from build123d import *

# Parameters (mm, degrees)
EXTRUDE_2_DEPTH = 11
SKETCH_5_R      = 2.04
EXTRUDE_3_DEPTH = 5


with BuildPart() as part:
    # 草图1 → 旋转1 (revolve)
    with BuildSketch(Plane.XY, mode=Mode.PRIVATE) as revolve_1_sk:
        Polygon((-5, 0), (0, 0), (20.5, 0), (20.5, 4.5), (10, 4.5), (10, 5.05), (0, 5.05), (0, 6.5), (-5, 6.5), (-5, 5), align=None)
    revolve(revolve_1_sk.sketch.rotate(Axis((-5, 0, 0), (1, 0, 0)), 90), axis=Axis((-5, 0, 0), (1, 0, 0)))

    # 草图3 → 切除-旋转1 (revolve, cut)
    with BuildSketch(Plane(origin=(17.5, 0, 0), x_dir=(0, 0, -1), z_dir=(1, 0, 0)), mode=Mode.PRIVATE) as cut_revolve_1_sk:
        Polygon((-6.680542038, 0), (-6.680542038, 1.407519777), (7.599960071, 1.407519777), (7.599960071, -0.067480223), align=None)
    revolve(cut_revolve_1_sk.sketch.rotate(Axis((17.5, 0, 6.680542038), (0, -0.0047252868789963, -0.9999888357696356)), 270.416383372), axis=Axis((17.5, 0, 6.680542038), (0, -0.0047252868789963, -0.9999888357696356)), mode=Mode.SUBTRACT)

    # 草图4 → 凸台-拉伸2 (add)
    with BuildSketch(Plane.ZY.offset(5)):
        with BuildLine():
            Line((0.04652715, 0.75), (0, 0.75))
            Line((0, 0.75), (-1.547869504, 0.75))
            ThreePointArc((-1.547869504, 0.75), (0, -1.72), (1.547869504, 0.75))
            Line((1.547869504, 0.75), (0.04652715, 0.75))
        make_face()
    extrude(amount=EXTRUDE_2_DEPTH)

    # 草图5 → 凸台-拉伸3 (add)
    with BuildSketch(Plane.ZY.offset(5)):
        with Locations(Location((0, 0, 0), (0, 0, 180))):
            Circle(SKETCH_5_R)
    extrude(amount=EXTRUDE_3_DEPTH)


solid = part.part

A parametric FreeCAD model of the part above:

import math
import FreeCAD as App
import Part
import Sketcher
from FreeCAD import Vector

doc = App.newDocument("Part")
params = doc.addObject("Spreadsheet::Sheet", "Params")
for row, (alias, value) in enumerate([
    ("sketch1_width", "10 mm"),
    ("sketch1_width2", "5 mm"),
    ("sketch1_width3", "25.5 mm"),
    ("sketch1_height", "4.5 mm"),
    ("sketch1_height2", "6.5 mm"),
    ("revolution_angle", "360 deg"),
    ("groove_angle", "360 deg"),
    ("sketch3_radius", "1.72 mm"),
    ("pad1_length", "11 mm"),
    ("sketch4_diameter", "4.08 mm"),
    ("pad2_length", "5 mm"),
], start=1):
    params.set(f"A{row}", alias)
    params.set(f"B{row}", "=" + value)
    params.setAlias(f"B{row}", alias)

body = doc.addObject("PartDesign::Body", "Body")

sketch1 = body.newObject("Sketcher::SketchObject", "Sketch")
sketch1.AttachmentSupport = (doc.getObject("XY_Plane"), [""])
sketch1.MapMode = "FlatFace"
sketch1.addGeometry([
    Part.LineSegment(Vector(-5, 0, 0), Vector(20.5, 0, 0)),
    Part.LineSegment(Vector(20.5, 0, 0), Vector(20.5, 4.5, 0)),
    Part.LineSegment(Vector(20.5, 4.5, 0), Vector(10, 4.5, 0)),
    Part.LineSegment(Vector(10, 4.5, 0), Vector(10, 5, 0)),
    Part.LineSegment(Vector(10, 5, 0), Vector(0, 5, 0)),
    Part.LineSegment(Vector(0, 5, 0), Vector(0, 6.5, 0)),
    Part.LineSegment(Vector(0, 6.5, 0), Vector(-5, 6.5, 0)),
    Part.LineSegment(Vector(-5, 6.5, 0), Vector(-5, 0, 0)),
], False)
sketch1.addConstraint([
    Sketcher.Constraint("Coincident", 0, 2, 1, 1),
    Sketcher.Constraint("Coincident", 1, 2, 2, 1),
    Sketcher.Constraint("Coincident", 2, 2, 3, 1),
    Sketcher.Constraint("Coincident", 3, 2, 4, 1),
    Sketcher.Constraint("Coincident", 4, 2, 5, 1),
    Sketcher.Constraint("Coincident", 5, 2, 6, 1),
    Sketcher.Constraint("Coincident", 6, 2, 7, 1),
    Sketcher.Constraint("Coincident", 7, 2, 0, 1),
    Sketcher.Constraint("Horizontal", 0),
    Sketcher.Constraint("Vertical", 1),
    Sketcher.Constraint("Horizontal", 2),
    Sketcher.Constraint("Vertical", 3),
    Sketcher.Constraint("Horizontal", 4),
    Sketcher.Constraint("Vertical", 5),
    Sketcher.Constraint("Horizontal", 6),
    Sketcher.Constraint("Vertical", 7),
    Sketcher.Constraint("PointOnObject", 0, 2, -1),
    Sketcher.Constraint("PointOnObject", 4, 2, -2),
    Sketcher.Constraint("DistanceX", 4, 2, 4, 1, 10.0),
    Sketcher.Constraint("DistanceX", 6, 2, 6, 1, 5.0),
    Sketcher.Constraint("DistanceX", 0, 1, 0, 2, 25.5),
    Sketcher.Constraint("DistanceY", 1, 1, 1, 2, 4.5),
    Sketcher.Constraint("DistanceY", 7, 2, 7, 1, 6.5),
    Sketcher.Constraint("DistanceY", 3, 1, 3, 2, 0.55),
])
sketch1.setExpression("Constraints[18]", "Params.sketch1_width")
sketch1.setExpression("Constraints[19]", "Params.sketch1_width2")
sketch1.setExpression("Constraints[20]", "Params.sketch1_width3")
sketch1.setExpression("Constraints[21]", "Params.sketch1_height")
sketch1.setExpression("Constraints[22]", "Params.sketch1_height2")
revolution = body.newObject("PartDesign::Revolution", "Revolution")
revolution.Profile = sketch1
revolution.ReferenceAxis = (sketch1, ["H_Axis"])
revolution.setExpression("Angle", "Params.revolution_angle")

sketch2 = body.newObject("Sketcher::SketchObject", "Sketch001")
sketch2.AttachmentSupport = (doc.getObject("YZ_Plane"), [""])
sketch2.MapMode = "FlatFace"
sketch2.AttachmentOffset = App.Placement(Vector(0, 0, 17.5), App.Rotation())
sketch2.addGeometry([
    Part.LineSegment(Vector(1.4, 6.7, 0), Vector(0, 6.7, 0)),
    Part.LineSegment(Vector(0, 6.7, 0), Vector(-0.1, -7.6, 0)),
    Part.LineSegment(Vector(-0.1, -7.6, 0), Vector(1.4, -7.6, 0)),
    Part.LineSegment(Vector(1.4, -7.6, 0), Vector(1.4, 6.7, 0)),
], False)
sketch2.addGeometry(Part.LineSegment(Vector(0, 6.7, 0), Vector(-0.1, -7.6, 0)), True)
sketch2.addConstraint([
    Sketcher.Constraint("Coincident", 0, 2, 1, 1),
    Sketcher.Constraint("Coincident", 1, 2, 2, 1),
    Sketcher.Constraint("Coincident", 2, 2, 3, 1),
    Sketcher.Constraint("Coincident", 3, 2, 0, 1),
    Sketcher.Constraint("Horizontal", 0),
    Sketcher.Constraint("Horizontal", 2),
    Sketcher.Constraint("Vertical", 3),
    Sketcher.Constraint("Coincident", 4, 2, 1, 2),
    Sketcher.Constraint("PointOnObject", 0, 2, -2),
    Sketcher.Constraint("Parallel", 1, 4),
    Sketcher.Constraint("DistanceX", 2, 1, 2, 2, 1.475),
    Sketcher.Constraint("DistanceX", 0, 2, 0, 1, 1.40752),
    Sketcher.Constraint("Distance", 1, 14.280662),
    Sketcher.Constraint("DistanceY", 1, 2, -1, 1, 7.59996),
    Sketcher.Constraint("DistanceY", 0, 2, 4, 1, 0.006651),
])
groove = body.newObject("PartDesign::Groove", "Groove")
groove.Profile = sketch2
groove.ReferenceAxis = (sketch2, ["Axis0"])
groove.setExpression("Angle", "Params.groove_angle")

sketch3 = body.newObject("Sketcher::SketchObject", "Sketch002")
sketch3.AttachmentSupport = (doc.getObject("YZ_Plane"), [""])
sketch3.MapMode = "FlatFace"
sketch3.AttachmentOffset = App.Placement(Vector(0, 0, -5), App.Rotation())
sketch3.addGeometry([
    Part.ArcOfCircle(Part.Circle(Vector(0, 0, 0), Vector(0, 0, 1), 1.7), math.radians(64), math.radians(296)),
    Part.LineSegment(Vector(0.8, 1.5, 0), Vector(0.8, -1.5, 0)),
], False)
sketch3.addConstraint([
    Sketcher.Constraint("Coincident", 0, 1, 1, 1),
    Sketcher.Constraint("Coincident", 1, 2, 0, 2),
    Sketcher.Constraint("Vertical", 1),
    Sketcher.Constraint("Coincident", 0, 3, -1, 1),
    Sketcher.Constraint("Radius", 0, 1.72),
    Sketcher.Constraint("DistanceX", -1, 1, 0, 1, 0.75),
])
sketch3.setExpression("Constraints[4]", "Params.sketch3_radius")
pad1 = body.newObject("PartDesign::Pad", "Pad")
pad1.Profile = sketch3
pad1.setExpression("Length", "Params.pad1_length")
pad1.Reversed = True

sketch4 = body.newObject("Sketcher::SketchObject", "Sketch003")
sketch4.AttachmentSupport = (doc.getObject("YZ_Plane"), [""])
sketch4.MapMode = "FlatFace"
sketch4.AttachmentOffset = App.Placement(Vector(0, 0, -5), App.Rotation())
sketch4.addGeometry(Part.Circle(Vector(0, 0, 0), Vector(0, 0, 1), 2), False)
sketch4.addConstraint([
    Sketcher.Constraint("Coincident", 0, 3, -1, 1),
    Sketcher.Constraint("Diameter", 0, 4.08),
])
sketch4.setExpression("Constraints[1]", "Params.sketch4_diameter")
pad2 = body.newObject("PartDesign::Pad", "Pad001")
pad2.Profile = sketch4
pad2.setExpression("Length", "Params.pad2_length")
pad2.Reversed = True

doc.recompute()
